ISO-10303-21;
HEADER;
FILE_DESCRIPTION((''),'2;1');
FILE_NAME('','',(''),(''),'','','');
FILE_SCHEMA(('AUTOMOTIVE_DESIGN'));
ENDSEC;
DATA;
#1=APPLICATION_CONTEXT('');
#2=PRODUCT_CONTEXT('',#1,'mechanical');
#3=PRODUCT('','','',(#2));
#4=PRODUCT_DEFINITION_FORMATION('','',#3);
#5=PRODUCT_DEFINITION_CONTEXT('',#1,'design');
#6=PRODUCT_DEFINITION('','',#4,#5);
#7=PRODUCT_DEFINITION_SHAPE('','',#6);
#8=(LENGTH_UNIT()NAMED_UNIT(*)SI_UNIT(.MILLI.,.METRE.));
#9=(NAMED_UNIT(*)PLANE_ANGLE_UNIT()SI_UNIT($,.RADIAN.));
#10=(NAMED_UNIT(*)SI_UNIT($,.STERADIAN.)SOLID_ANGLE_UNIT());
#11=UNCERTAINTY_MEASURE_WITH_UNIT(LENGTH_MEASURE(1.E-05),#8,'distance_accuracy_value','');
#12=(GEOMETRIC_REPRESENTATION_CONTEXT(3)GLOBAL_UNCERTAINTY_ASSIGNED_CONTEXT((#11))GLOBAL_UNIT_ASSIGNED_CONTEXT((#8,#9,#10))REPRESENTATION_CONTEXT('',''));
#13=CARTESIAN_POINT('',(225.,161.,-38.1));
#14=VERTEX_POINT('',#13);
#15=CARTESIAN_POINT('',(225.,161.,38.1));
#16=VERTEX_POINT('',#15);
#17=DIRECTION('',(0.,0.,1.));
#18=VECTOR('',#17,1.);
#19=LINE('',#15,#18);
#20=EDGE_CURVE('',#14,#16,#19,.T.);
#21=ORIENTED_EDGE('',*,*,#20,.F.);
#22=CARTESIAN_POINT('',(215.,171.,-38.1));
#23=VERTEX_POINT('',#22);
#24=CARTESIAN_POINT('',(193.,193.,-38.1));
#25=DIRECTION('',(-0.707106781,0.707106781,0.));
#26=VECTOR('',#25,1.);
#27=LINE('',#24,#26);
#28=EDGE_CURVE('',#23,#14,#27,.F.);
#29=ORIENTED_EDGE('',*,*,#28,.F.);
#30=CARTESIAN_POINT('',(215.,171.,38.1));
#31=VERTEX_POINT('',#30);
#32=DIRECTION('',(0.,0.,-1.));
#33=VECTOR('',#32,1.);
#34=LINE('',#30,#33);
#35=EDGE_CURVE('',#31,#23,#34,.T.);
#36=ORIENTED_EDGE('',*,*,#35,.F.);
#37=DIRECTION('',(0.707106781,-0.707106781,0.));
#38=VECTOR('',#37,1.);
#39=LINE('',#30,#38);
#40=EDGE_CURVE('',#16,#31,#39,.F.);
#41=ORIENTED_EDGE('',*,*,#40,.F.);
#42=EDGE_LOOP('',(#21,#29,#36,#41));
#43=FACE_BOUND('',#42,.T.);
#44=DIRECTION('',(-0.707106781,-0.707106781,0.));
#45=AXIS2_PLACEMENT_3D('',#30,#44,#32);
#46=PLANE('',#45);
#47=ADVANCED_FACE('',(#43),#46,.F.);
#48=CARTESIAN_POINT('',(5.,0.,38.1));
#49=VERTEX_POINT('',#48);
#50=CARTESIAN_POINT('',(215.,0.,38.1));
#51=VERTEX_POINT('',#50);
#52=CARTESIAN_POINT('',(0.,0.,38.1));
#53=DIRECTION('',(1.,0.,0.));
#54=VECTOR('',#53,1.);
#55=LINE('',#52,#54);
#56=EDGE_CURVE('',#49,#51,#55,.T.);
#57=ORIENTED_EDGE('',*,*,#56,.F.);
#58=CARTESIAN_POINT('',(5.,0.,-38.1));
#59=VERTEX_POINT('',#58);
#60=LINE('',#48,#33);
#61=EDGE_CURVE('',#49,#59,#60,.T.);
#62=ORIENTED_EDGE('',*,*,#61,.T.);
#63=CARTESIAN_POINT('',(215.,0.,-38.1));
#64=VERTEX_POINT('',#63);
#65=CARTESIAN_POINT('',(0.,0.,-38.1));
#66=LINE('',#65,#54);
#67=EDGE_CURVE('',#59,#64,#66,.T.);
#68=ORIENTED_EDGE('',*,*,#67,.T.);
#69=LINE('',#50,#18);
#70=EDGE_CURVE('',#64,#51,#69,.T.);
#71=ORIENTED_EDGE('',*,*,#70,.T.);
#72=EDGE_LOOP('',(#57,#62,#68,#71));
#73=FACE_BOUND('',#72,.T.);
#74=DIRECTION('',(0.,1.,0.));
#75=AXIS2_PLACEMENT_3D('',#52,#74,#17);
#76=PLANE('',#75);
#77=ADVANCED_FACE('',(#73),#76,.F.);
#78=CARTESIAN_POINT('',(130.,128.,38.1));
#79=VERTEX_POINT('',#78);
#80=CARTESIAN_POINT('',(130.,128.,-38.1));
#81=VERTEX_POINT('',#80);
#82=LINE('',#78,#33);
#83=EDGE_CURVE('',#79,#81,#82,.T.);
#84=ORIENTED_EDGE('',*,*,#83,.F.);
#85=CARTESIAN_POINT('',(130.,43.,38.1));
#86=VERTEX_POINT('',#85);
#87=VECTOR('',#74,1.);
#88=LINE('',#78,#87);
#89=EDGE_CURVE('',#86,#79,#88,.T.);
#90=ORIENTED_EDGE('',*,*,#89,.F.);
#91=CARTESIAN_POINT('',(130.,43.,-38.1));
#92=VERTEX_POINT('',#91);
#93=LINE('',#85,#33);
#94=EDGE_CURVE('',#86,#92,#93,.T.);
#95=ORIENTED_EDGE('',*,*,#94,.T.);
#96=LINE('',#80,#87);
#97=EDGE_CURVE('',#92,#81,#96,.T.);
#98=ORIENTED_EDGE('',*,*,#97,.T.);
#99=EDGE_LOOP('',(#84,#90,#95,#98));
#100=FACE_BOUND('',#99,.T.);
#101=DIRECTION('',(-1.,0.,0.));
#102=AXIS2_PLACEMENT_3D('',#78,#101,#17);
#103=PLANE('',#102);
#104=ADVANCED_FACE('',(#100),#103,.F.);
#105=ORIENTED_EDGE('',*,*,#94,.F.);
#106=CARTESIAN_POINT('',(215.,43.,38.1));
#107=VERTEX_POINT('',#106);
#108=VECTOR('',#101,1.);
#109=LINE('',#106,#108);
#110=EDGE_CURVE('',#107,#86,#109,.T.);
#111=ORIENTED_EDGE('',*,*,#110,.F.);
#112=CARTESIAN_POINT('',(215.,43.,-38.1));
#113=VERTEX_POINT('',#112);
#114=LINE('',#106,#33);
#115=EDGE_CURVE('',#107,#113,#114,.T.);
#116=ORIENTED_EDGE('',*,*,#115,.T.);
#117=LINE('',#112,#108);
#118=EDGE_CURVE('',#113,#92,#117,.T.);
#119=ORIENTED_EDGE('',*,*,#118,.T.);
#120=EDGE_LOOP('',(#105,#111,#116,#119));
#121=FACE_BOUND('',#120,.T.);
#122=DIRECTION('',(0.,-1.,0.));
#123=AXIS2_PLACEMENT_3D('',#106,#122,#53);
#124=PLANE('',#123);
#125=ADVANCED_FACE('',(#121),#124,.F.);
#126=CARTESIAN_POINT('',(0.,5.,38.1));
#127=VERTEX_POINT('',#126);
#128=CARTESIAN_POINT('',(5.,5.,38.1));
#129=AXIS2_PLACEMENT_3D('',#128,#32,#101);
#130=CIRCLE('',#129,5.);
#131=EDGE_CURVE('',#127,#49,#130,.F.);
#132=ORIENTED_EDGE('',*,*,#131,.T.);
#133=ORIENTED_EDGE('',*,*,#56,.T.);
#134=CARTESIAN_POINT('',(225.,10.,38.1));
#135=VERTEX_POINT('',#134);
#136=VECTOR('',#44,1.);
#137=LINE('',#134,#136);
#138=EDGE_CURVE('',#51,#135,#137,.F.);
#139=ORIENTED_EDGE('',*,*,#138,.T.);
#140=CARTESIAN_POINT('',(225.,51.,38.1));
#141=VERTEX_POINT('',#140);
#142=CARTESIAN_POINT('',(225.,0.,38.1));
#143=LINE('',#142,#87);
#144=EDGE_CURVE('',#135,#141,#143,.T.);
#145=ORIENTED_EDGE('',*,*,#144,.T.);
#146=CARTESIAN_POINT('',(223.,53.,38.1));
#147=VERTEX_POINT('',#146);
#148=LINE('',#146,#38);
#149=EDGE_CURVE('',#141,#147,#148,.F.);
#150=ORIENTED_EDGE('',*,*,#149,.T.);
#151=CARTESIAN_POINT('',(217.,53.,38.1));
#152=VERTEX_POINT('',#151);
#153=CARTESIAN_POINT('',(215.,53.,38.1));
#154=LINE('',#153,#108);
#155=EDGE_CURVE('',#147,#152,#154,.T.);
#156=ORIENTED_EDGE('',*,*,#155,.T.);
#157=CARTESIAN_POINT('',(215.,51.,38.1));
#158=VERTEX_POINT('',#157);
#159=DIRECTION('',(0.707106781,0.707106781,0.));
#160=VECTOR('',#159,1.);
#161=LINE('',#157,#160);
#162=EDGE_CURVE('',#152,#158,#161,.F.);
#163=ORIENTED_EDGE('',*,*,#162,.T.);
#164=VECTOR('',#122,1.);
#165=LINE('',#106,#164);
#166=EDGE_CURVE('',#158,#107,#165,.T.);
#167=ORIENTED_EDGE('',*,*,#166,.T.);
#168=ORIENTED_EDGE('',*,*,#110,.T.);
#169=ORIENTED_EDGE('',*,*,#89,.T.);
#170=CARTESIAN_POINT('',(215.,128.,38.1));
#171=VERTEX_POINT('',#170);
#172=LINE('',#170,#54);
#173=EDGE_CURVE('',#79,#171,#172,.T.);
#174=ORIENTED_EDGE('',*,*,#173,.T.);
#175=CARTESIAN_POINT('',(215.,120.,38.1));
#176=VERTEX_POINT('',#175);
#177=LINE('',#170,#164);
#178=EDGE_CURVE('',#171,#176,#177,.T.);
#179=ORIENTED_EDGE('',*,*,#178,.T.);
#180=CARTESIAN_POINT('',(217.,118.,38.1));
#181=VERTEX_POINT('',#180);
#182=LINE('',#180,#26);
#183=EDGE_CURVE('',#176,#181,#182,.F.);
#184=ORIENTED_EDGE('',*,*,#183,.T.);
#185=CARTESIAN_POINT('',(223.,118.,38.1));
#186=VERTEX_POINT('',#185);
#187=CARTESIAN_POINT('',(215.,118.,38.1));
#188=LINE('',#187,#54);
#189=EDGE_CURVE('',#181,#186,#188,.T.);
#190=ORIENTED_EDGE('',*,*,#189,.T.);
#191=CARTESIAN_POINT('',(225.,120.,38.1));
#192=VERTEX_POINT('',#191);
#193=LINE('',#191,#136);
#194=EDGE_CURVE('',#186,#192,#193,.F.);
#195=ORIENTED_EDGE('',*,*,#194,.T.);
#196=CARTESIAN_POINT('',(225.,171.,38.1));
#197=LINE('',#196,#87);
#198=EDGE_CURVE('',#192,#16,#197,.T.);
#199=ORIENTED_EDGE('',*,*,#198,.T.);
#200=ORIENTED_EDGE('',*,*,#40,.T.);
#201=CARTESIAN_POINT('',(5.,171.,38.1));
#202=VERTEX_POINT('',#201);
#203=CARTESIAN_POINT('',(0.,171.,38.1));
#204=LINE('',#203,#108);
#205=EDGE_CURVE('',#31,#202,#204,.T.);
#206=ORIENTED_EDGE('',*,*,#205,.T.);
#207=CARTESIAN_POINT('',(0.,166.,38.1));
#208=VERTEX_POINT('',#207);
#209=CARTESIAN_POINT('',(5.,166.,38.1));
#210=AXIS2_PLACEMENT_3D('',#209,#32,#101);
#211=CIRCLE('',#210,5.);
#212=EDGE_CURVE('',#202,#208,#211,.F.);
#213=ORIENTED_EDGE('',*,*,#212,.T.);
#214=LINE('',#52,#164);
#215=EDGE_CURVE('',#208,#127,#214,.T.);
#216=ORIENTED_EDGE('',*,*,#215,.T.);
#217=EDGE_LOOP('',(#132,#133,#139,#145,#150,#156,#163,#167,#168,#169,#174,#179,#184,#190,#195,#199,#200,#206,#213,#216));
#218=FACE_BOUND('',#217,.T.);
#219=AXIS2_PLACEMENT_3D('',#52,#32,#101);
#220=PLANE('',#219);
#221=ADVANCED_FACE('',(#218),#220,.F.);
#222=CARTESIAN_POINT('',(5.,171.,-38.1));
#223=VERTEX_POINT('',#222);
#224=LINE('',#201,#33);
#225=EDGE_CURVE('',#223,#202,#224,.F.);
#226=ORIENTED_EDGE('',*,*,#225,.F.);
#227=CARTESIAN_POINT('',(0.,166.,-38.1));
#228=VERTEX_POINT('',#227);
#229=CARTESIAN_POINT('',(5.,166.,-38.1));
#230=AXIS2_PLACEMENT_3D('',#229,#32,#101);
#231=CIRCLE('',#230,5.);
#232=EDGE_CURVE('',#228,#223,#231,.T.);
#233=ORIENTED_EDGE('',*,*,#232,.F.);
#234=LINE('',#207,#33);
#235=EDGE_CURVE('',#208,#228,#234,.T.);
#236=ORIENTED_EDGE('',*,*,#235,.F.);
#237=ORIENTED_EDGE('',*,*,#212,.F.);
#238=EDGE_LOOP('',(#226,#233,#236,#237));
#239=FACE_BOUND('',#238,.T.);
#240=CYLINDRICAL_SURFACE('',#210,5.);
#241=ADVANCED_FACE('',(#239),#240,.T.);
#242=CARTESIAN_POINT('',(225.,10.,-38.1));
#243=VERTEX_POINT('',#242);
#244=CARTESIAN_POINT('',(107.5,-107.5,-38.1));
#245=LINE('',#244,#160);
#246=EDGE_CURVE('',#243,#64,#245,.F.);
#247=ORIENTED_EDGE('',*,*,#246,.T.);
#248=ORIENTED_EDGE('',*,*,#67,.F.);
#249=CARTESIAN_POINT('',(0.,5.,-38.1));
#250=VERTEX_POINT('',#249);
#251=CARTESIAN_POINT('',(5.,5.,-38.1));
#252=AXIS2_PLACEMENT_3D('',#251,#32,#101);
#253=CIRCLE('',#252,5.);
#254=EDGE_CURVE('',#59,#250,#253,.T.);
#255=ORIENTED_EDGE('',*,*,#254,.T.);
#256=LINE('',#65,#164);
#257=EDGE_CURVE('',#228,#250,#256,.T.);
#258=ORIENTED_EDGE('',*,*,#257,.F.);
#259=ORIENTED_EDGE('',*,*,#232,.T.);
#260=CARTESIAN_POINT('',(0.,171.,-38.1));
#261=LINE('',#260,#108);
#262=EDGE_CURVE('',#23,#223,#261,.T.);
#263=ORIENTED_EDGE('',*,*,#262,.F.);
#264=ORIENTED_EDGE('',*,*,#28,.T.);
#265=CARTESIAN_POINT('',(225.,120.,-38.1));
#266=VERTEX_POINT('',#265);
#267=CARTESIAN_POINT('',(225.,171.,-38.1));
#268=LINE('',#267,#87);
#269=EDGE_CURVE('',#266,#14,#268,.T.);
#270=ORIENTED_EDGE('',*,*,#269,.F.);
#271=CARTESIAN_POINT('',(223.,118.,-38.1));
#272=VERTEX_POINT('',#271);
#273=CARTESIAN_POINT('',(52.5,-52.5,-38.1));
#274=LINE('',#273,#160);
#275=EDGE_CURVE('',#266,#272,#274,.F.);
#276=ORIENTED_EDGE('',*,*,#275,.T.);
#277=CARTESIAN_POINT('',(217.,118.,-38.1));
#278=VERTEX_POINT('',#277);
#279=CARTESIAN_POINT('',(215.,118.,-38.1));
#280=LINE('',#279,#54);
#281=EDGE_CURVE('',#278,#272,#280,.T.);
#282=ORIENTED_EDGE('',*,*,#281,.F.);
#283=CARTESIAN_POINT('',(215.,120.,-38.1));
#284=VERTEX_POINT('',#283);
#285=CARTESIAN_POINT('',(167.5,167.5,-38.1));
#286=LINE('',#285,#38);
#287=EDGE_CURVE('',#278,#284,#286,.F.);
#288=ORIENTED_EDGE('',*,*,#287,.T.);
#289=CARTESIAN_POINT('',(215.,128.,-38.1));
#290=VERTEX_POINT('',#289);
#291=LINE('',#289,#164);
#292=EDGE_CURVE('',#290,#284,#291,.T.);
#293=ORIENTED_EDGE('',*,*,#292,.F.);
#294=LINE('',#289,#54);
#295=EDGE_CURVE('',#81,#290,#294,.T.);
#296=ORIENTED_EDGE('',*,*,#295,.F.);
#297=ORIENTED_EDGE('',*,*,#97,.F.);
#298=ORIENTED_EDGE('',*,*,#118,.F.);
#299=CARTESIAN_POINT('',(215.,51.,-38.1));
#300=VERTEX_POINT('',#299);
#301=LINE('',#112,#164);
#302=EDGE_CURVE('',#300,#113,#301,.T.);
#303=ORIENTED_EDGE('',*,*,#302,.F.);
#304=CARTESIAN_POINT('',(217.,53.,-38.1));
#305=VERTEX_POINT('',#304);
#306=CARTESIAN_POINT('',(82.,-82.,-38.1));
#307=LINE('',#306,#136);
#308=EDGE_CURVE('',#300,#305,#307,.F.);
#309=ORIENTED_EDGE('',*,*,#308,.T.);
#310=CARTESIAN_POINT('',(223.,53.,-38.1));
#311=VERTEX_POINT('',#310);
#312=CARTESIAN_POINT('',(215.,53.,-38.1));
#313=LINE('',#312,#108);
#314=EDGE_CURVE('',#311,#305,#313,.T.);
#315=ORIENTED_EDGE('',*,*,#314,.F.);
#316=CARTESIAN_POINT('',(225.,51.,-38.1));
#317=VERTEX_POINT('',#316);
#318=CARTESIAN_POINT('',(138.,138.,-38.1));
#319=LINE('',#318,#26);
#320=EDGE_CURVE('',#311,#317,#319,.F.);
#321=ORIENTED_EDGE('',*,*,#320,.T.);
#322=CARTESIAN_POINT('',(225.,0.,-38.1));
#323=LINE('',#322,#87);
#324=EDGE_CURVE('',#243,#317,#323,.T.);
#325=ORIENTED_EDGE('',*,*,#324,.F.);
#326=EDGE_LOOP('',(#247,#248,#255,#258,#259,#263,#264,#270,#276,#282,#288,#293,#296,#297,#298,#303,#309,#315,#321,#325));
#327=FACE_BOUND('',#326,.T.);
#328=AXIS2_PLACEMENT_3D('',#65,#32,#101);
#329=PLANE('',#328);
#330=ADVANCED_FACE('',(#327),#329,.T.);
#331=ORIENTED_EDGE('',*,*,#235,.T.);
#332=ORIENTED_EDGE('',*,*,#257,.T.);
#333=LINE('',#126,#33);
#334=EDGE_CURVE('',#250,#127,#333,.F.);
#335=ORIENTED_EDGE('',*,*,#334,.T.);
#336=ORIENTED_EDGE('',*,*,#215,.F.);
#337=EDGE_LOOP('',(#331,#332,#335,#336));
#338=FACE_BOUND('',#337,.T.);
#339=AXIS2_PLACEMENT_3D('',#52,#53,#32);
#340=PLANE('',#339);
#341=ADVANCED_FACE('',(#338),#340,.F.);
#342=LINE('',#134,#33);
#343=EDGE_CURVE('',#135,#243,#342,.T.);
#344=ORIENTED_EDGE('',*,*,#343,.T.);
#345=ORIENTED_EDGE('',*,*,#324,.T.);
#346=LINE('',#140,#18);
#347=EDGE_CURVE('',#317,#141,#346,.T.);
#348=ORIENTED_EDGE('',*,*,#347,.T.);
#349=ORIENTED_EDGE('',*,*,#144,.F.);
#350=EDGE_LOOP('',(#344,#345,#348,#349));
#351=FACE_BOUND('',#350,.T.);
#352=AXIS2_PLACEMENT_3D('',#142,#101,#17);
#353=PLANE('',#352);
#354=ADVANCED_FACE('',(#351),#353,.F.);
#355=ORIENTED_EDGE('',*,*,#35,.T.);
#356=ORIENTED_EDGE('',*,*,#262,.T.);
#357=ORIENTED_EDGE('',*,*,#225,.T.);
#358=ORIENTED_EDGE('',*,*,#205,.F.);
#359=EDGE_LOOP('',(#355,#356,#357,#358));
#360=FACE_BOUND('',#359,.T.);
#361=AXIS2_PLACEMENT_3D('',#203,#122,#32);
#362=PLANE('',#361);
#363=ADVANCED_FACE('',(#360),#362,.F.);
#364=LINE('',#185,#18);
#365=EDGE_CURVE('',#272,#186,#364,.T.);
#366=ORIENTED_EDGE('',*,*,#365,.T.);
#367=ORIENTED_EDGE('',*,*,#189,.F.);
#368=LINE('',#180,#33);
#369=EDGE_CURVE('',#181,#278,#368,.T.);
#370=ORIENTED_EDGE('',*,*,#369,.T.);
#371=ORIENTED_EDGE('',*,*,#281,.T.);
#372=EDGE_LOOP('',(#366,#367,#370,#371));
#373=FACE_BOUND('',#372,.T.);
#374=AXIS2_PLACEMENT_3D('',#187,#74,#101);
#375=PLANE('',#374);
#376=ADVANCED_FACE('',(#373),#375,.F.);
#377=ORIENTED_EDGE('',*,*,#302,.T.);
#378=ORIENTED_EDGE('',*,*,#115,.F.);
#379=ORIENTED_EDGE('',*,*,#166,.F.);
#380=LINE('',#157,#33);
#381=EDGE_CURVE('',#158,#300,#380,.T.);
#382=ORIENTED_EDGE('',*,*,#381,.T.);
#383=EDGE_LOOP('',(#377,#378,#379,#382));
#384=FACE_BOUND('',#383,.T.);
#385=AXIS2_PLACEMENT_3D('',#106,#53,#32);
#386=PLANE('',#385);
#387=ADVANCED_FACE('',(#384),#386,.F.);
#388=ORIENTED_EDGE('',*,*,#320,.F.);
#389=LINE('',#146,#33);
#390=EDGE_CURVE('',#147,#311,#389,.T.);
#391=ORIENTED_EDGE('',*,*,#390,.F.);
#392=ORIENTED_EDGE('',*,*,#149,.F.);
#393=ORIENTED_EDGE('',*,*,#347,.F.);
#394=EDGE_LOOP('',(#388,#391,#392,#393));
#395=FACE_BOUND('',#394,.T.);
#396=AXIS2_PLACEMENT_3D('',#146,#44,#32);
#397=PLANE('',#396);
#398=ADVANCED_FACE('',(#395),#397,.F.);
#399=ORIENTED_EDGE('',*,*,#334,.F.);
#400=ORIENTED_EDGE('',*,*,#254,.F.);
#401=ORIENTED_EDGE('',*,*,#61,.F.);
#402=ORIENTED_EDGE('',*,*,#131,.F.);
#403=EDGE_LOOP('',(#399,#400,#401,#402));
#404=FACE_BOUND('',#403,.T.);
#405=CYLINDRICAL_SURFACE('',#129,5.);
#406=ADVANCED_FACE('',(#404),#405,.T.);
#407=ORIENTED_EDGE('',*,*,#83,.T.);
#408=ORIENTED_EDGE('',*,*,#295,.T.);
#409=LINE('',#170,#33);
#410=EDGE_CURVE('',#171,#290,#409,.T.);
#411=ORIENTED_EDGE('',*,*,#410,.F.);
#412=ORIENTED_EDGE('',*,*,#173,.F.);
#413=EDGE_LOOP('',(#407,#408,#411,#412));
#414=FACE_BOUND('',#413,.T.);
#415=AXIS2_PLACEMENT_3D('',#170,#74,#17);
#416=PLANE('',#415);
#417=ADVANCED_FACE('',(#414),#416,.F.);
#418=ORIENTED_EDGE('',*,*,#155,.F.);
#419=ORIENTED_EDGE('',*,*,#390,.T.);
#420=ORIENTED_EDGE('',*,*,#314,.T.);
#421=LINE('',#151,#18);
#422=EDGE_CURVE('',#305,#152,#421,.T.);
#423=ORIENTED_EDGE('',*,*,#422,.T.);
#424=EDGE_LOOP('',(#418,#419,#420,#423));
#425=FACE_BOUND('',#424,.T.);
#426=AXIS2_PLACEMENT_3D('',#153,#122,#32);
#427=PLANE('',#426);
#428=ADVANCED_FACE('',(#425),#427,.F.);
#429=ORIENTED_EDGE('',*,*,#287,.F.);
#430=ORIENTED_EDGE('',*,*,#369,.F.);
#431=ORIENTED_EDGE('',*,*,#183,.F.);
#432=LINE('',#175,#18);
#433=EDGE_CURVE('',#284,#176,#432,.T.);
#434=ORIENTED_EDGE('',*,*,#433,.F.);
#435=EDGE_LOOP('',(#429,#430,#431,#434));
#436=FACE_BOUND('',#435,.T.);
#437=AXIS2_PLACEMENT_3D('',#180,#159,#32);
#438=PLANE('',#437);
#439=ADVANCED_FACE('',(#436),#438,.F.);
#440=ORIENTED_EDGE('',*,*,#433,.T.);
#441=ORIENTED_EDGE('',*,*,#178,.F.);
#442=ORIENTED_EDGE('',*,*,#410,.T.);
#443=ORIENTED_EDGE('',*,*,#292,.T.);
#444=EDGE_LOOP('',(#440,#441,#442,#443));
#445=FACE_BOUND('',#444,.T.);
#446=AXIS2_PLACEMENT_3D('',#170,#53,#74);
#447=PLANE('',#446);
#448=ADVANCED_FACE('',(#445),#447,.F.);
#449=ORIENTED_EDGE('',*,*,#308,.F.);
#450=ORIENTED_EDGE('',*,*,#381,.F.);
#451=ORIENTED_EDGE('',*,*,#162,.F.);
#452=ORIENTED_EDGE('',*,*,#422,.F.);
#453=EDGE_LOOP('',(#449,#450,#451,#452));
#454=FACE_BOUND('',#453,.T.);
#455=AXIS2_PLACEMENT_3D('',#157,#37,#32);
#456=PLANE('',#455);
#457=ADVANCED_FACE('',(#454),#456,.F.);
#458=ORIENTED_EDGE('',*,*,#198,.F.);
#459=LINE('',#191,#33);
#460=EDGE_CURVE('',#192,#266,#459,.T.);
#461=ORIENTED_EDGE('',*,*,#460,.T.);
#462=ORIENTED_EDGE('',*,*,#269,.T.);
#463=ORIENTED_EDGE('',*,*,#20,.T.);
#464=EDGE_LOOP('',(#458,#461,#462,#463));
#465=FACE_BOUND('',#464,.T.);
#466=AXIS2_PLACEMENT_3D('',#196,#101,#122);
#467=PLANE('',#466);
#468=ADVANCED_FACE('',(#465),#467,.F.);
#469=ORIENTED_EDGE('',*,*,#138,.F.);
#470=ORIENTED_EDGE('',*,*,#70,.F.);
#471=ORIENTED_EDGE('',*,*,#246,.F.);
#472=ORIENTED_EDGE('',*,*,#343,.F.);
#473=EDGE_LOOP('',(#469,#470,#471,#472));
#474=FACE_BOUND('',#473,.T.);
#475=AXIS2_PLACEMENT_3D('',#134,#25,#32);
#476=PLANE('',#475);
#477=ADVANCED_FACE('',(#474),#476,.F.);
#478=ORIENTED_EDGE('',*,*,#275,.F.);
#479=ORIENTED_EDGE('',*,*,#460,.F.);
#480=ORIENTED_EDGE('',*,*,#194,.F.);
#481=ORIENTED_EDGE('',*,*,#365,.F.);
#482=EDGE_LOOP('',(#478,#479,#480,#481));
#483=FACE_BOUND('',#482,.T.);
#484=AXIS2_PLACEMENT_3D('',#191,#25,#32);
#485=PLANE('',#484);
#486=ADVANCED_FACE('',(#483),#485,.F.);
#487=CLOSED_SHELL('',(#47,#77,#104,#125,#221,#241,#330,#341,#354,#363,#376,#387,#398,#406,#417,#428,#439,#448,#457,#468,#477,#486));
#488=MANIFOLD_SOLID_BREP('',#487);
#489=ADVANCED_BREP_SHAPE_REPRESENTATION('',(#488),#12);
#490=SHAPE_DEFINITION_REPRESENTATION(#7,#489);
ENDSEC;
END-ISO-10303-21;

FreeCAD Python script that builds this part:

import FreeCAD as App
import Part
import Sketcher


def edges_at(feature, points):
    """Names of the edges that pass closest to the given points."""
    edges = feature.Shape.Edges
    near = lambda p: min(range(len(edges)), key=lambda i: edges[i].distToShape(Part.Vertex(*p))[0])
    return sorted({f"Edge{near(p) + 1}" for p in points})

doc = App.newDocument("Part")
body = doc.addObject("PartDesign::Body", "Body")

# Sketch on XY plane
sketch1 = doc.addObject("Sketcher::SketchObject", "Sketch")
body.addObject(sketch1)
sketch1.AttachmentSupport = (doc.XY_Plane, [""])
sketch1.MapMode = "FlatFace"
sketch1.addGeometry([
    Part.LineSegment(App.Vector(0, 0, 0), App.Vector(225, 0, 0)),  # 0
    Part.LineSegment(App.Vector(225, 0, 0), App.Vector(225, 53, 0)),  # 1
    Part.LineSegment(App.Vector(225, 53, 0), App.Vector(215, 53, 0)),  # 2
    Part.LineSegment(App.Vector(215, 53, 0), App.Vector(215, 43, 0)),  # 3
    Part.LineSegment(App.Vector(215, 43, 0), App.Vector(130, 43, 0)),  # 4
    Part.LineSegment(App.Vector(130, 43, 0), App.Vector(130, 128, 0)),  # 5
    Part.LineSegment(App.Vector(130, 128, 0), App.Vector(215, 128, 0)),  # 6
    Part.LineSegment(App.Vector(215, 128, 0), App.Vector(215, 118, 0)),  # 7
    Part.LineSegment(App.Vector(215, 118, 0), App.Vector(225, 118, 0)),  # 8
    Part.LineSegment(App.Vector(225, 118, 0), App.Vector(225, 171, 0)),  # 9
    Part.LineSegment(App.Vector(225, 171, 0), App.Vector(0, 171, 0)),  # 10
    Part.LineSegment(App.Vector(0, 171, 0), App.Vector(0, 0, 0)),  # 11
], False)
sketch1.addConstraint([
    Sketcher.Constraint("Coincident", 0, 2, 1, 1),
    Sketcher.Constraint("Coincident", 1, 2, 2, 1),
    Sketcher.Constraint("Coincident", 2, 2, 3, 1),
    Sketcher.Constraint("Coincident", 3, 2, 4, 1),
    Sketcher.Constraint("Coincident", 4, 2, 5, 1),
    Sketcher.Constraint("Coincident", 5, 2, 6, 1),
    Sketcher.Constraint("Coincident", 6, 2, 7, 1),
    Sketcher.Constraint("Coincident", 7, 2, 8, 1),
    Sketcher.Constraint("Coincident", 8, 2, 9, 1),
    Sketcher.Constraint("Coincident", 9, 2, 10, 1),
    Sketcher.Constraint("Coincident", 10, 2, 11, 1),
    Sketcher.Constraint("Coincident", 11, 2, 0, 1),
    Sketcher.Constraint("Horizontal", 0),
    Sketcher.Constraint("Vertical", 1),
    Sketcher.Constraint("Horizontal", 2),
    Sketcher.Constraint("Vertical", 3),
    Sketcher.Constraint("Horizontal", 4),
    Sketcher.Constraint("Vertical", 5),
    Sketcher.Constraint("Horizontal", 6),
    Sketcher.Constraint("Vertical", 7),
    Sketcher.Constraint("Horizontal", 8),
    Sketcher.Constraint("Vertical", 9),
    Sketcher.Constraint("Horizontal", 10),
    Sketcher.Constraint("Vertical", 11),
    Sketcher.Constraint("Coincident", 11, 2, -1, 1),
    Sketcher.Constraint("Vertical", 3, 2, 6, 2),
    Sketcher.Constraint("Vertical", 1, 2, 8, 2),
    Sketcher.Constraint("Equal", 8, 3),
    Sketcher.Constraint("Equal", 6, 5),
    Sketcher.Constraint("Equal", 3, 7),
    Sketcher.Constraint("Equal", 1, 9),
    Sketcher.Constraint("DistanceX", 0, 1, 0, 2, 225.0),
    Sketcher.Constraint("DistanceX", 2, 2, 2, 1, 10.0),
    Sketcher.Constraint("DistanceX", 4, 2, 4, 1, 85.0),
    Sketcher.Constraint("DistanceY", 1, 1, 1, 2, 53.0),
])
pad1 = doc.addObject("PartDesign::Pad", "Pad")
body.addObject(pad1)
pad1.Profile = sketch1
pad1.Length = 76.2
pad1.Midplane = True
doc.recompute()

chamfer = doc.addObject("PartDesign::Chamfer", "Chamfer")
body.addObject(chamfer)
chamfer.Base = (pad1, edges_at(pad1, [(225, 171, 0), (225, 0, 0)]))
chamfer.Size = 10
doc.recompute()

chamfer2 = doc.addObject("PartDesign::Chamfer", "Chamfer001")
body.addObject(chamfer2)
chamfer2.Base = (chamfer, edges_at(chamfer, [
    (225, 118, 0),
    (215, 118, 0),
    (215, 53, 0),
    (225, 53, 0),
]))
chamfer2.Size = 2
doc.recompute()

fillet = doc.addObject("PartDesign::Fillet", "Fillet")
body.addObject(fillet)
fillet.Base = (chamfer2, edges_at(chamfer2, [(0, 171, 0), (0, 0, 0)]))
fillet.Radius = 5

doc.recompute()
